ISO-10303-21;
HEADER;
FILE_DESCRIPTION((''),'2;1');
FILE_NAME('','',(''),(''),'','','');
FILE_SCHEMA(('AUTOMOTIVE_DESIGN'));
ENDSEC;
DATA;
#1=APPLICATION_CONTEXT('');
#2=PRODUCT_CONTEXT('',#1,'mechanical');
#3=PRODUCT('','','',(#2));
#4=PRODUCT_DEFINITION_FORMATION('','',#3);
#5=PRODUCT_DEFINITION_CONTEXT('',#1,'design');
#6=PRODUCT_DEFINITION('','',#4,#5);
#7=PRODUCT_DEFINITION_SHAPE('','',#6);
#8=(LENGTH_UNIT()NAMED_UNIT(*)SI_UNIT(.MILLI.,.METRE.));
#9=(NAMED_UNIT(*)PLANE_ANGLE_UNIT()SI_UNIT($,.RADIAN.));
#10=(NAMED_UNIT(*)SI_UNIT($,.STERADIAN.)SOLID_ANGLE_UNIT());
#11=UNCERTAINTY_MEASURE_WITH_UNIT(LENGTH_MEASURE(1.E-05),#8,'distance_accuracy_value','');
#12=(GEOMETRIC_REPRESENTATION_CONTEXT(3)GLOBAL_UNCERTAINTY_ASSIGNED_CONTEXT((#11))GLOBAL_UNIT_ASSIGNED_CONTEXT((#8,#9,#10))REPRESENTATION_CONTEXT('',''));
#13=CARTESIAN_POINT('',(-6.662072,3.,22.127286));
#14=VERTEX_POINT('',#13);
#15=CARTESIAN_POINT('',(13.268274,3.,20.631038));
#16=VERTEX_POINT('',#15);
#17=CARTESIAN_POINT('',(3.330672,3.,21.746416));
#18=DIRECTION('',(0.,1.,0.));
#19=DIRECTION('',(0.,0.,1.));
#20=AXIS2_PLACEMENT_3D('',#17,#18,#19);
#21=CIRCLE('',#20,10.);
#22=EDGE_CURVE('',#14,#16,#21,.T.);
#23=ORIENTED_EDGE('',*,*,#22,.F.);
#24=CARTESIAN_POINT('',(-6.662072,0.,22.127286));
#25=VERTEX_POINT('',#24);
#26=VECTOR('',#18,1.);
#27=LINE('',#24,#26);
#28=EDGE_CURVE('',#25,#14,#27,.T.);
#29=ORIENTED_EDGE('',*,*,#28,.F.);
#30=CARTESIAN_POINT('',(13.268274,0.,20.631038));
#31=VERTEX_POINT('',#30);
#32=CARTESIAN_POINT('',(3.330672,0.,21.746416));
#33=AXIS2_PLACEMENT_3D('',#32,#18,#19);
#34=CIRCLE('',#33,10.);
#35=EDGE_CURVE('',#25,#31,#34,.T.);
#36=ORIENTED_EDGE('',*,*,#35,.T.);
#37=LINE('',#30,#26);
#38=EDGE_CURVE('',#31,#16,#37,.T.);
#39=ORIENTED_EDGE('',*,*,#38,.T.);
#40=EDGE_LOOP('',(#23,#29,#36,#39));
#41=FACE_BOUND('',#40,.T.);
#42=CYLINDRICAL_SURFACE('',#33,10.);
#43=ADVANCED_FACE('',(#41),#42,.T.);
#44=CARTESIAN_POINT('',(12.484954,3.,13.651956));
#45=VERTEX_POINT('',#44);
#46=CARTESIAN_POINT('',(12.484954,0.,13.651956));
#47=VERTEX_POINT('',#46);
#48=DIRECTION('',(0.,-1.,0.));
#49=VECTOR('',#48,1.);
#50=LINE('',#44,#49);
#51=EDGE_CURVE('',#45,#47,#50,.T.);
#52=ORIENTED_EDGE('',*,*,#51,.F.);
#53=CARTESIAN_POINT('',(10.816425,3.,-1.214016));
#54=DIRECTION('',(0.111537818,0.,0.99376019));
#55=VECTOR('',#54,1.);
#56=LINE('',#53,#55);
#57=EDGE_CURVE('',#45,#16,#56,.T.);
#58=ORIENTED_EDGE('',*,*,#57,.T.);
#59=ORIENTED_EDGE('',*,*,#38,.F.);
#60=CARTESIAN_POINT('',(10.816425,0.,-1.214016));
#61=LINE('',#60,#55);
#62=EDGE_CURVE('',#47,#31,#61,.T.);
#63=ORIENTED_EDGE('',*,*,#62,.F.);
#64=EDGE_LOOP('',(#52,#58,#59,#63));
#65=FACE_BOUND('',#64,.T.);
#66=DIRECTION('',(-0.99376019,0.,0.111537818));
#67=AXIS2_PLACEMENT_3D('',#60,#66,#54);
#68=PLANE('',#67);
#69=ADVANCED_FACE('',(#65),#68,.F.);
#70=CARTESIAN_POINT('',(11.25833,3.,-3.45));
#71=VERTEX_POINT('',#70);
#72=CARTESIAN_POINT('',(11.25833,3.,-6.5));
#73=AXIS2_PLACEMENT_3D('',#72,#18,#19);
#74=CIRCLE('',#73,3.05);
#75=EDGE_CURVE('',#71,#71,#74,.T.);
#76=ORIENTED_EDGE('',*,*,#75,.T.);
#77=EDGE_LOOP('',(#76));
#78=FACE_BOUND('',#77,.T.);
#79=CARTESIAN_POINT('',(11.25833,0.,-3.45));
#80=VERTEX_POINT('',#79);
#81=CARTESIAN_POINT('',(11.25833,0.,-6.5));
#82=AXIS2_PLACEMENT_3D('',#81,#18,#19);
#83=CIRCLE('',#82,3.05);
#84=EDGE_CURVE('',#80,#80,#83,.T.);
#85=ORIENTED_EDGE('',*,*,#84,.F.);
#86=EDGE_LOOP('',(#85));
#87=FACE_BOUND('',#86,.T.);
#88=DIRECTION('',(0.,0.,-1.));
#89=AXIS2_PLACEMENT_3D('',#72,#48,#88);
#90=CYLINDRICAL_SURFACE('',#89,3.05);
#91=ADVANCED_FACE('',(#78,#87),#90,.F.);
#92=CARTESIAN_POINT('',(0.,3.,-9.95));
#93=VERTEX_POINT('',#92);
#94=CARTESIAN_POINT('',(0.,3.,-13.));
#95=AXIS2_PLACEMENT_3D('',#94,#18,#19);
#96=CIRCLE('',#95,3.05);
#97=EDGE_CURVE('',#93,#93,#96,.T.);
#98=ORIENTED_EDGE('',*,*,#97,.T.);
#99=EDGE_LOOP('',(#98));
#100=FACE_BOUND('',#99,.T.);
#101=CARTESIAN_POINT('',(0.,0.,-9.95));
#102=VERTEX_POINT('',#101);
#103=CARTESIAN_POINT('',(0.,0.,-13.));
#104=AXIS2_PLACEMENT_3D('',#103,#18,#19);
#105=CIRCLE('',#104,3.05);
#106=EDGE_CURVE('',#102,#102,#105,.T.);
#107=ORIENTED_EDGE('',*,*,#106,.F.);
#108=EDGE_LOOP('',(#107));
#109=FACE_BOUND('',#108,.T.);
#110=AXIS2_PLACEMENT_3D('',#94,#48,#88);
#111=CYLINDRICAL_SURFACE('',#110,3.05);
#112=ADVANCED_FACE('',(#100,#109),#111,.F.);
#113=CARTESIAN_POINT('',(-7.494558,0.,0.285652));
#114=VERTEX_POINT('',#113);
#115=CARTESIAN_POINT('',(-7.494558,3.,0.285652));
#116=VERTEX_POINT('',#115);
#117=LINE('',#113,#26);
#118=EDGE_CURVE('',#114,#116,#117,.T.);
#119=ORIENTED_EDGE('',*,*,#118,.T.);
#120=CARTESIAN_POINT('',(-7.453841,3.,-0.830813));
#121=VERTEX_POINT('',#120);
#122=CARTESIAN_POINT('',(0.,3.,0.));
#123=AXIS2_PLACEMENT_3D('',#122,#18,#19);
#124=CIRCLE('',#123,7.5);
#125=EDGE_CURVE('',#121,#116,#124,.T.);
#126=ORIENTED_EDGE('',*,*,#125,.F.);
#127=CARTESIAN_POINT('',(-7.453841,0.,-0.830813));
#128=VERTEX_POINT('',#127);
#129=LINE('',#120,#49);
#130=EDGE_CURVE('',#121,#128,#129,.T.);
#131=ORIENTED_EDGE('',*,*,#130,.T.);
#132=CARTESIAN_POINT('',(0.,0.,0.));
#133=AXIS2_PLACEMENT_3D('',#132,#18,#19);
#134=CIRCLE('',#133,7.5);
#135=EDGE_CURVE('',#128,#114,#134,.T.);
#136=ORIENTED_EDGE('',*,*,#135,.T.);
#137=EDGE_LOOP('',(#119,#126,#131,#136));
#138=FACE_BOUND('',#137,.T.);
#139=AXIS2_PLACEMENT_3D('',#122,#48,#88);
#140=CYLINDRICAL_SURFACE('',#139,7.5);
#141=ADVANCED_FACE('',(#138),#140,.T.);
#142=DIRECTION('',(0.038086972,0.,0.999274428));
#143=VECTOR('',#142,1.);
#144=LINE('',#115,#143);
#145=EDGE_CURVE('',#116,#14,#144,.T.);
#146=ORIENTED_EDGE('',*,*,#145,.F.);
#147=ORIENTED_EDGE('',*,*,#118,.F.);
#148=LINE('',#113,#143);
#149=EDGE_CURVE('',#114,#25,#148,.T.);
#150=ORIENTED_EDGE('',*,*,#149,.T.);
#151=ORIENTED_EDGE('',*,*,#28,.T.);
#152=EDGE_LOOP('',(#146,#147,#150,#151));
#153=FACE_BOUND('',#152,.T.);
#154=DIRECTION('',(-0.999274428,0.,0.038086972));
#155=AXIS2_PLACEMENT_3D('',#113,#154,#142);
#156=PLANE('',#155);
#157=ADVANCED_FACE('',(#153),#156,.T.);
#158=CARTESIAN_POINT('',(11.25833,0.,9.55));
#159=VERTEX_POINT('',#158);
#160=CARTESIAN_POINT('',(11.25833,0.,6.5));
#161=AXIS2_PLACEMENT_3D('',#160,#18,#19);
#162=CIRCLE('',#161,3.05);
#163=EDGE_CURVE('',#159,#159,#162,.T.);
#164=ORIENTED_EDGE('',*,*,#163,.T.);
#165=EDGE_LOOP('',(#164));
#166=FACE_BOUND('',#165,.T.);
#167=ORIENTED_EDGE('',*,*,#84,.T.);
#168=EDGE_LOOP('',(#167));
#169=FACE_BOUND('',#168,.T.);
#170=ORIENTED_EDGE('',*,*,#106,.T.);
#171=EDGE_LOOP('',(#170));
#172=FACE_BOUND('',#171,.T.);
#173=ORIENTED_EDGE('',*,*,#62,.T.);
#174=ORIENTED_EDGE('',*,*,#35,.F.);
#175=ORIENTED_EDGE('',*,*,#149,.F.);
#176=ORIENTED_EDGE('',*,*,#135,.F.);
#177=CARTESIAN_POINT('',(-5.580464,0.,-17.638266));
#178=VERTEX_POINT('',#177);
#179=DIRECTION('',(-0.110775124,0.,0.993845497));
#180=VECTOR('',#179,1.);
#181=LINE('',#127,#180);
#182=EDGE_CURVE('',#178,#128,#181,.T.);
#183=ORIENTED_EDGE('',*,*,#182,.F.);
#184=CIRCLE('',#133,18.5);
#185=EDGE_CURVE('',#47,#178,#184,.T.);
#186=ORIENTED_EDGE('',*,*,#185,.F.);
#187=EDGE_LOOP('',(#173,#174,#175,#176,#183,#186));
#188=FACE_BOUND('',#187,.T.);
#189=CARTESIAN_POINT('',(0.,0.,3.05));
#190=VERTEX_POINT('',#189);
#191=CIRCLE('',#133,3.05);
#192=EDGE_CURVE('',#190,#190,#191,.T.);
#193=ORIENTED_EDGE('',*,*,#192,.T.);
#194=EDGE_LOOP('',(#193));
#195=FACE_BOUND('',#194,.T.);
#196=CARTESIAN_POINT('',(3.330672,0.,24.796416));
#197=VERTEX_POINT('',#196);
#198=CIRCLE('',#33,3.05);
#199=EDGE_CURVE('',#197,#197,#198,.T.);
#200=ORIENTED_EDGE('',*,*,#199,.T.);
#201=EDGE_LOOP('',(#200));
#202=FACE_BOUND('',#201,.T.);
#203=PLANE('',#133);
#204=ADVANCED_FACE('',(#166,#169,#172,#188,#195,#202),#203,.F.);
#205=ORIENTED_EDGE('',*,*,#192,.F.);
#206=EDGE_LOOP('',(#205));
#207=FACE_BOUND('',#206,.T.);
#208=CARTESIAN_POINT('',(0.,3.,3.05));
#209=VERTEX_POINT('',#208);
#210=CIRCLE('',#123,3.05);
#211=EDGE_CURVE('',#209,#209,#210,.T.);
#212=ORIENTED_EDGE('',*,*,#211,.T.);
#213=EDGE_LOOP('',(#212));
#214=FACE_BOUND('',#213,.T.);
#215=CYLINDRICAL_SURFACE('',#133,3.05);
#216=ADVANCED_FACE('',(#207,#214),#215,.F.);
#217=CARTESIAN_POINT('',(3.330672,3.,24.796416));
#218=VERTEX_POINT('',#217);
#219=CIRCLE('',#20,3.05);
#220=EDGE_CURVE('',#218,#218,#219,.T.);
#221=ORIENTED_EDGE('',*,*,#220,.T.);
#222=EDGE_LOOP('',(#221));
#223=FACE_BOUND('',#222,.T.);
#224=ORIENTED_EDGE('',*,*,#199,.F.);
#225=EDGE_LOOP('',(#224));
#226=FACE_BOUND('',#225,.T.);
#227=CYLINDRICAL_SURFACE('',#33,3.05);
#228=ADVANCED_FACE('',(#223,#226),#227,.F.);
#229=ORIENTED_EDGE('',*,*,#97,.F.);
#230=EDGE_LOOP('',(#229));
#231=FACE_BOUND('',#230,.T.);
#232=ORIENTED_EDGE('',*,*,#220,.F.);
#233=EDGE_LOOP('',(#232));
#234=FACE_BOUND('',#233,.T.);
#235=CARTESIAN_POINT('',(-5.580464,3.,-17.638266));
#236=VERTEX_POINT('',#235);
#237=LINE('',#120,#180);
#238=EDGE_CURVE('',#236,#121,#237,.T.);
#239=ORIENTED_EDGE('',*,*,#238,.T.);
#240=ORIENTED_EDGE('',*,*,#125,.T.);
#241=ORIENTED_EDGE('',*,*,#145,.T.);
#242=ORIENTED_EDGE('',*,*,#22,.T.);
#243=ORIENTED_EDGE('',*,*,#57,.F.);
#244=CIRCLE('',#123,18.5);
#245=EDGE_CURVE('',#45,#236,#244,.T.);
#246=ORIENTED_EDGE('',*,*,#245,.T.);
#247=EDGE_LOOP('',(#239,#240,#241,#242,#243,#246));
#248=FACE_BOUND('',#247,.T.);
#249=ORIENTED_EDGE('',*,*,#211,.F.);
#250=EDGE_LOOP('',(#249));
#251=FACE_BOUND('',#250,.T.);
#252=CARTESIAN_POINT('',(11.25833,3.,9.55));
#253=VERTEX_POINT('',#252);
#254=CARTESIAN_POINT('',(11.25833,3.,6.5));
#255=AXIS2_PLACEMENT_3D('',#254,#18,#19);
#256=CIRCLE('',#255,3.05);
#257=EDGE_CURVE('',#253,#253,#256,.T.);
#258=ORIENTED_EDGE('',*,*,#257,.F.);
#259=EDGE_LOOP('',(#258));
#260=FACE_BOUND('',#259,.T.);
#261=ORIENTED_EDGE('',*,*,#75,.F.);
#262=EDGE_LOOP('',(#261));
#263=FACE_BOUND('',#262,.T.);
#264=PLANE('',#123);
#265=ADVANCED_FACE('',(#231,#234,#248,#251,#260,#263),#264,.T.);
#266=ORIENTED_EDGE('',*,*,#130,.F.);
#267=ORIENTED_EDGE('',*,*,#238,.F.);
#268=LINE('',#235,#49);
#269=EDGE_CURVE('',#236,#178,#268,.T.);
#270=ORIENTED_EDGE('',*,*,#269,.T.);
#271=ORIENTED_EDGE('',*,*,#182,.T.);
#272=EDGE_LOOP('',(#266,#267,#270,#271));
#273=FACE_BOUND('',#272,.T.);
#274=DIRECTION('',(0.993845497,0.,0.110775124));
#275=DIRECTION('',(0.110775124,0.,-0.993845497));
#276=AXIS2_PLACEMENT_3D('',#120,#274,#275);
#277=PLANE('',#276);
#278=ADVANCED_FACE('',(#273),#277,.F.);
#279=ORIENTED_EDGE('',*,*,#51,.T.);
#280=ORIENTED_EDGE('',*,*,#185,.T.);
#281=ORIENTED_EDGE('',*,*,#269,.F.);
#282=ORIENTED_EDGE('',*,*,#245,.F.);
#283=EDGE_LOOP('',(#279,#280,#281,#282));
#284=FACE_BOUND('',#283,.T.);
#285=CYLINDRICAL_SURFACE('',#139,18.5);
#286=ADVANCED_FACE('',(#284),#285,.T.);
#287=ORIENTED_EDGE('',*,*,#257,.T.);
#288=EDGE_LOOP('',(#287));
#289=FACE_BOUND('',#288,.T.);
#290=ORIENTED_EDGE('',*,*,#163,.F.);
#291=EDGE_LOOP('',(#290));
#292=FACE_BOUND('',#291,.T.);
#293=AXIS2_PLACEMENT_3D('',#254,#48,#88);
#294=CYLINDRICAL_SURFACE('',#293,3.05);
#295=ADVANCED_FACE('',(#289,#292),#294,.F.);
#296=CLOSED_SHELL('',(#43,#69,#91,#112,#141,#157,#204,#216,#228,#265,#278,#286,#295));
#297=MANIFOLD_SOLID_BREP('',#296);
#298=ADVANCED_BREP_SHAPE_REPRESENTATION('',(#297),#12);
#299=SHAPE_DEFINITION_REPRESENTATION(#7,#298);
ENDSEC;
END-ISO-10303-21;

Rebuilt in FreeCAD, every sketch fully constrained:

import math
import FreeCAD as App
import Part
import Sketcher
Q = App.Units.Quantity

doc = App.newDocument("Part")
body = doc.addObject("PartDesign::Body", "Body")

# Sketch on XZ plane
sketch1 = body.newObject("Sketcher::SketchObject", "Sketch")
sketch1.AttachmentSupport = (doc.getObject("XZ_Plane"), [""])
sketch1.MapMode = "FlatFace"
sketch1.addGeometry(Part.ArcOfCircle(Part.Circle(App.Vector(0, 0, 0), App.Vector(0, 0, 1), 7.5), math.radians(114), math.radians(186)), False)
sketch1.addGeometry(Part.LineSegment(App.Vector(-3, 6.9, 0), App.Vector(12.5, 13.7, 0)), False)
sketch1.addGeometry(Part.ArcOfCircle(Part.Circle(App.Vector(0, 0, 0), App.Vector(0, 0, 1), 18.5), math.radians(0), math.radians(48)), False)
sketch1.addGeometry(Part.ArcOfCircle(Part.Circle(App.Vector(0, 0, 0), App.Vector(0, 0, 1), 18.5), math.radians(-108), math.radians(0)), False)
sketch1.addGeometry(Part.LineSegment(App.Vector(-5.6, -17.6, 0), App.Vector(-7.5, -0.8, 0)), False)
sketch1.addGeometry(Part.Circle(App.Vector(11.3, -6.5, 0), App.Vector(0, 0, 1), 3), False)
sketch1.addGeometry(Part.Circle(App.Vector(0, -13, 0), App.Vector(0, 0, 1), 3), False)
sketch1.addGeometry(Part.Circle(App.Vector(11.3, 6.5, 0), App.Vector(0, 0, 1), 3), False)
sketch1.addConstraint(Sketcher.Constraint("Tangent", 0, 1, 1, 1))
sketch1.addConstraint(Sketcher.Constraint("Coincident", 1, 2, 2, 2))
sketch1.addConstraint(Sketcher.Constraint("Tangent", 2, 1, 3, 2))
sketch1.addConstraint(Sketcher.Constraint("Coincident", 3, 1, 4, 1))
sketch1.addConstraint(Sketcher.Constraint("Tangent", 4, 2, 0, 2))
sketch1.addConstraint(Sketcher.Constraint("Coincident", 0, 3, -1, 1))
sketch1.addConstraint(Sketcher.Constraint("Coincident", 2, 3, -1, 1))
sketch1.addConstraint(Sketcher.Constraint("Equal", 2, 3))
sketch1.addConstraint(Sketcher.Constraint("Equal", 5, 6))
sketch1.addConstraint(Sketcher.Constraint("Equal", 6, 7))
sketch1.addConstraint(Sketcher.Constraint("Symmetric", 5, 3, 7, 3, -1))
sketch1.addConstraint(Sketcher.Constraint("PointOnObject", 6, 3, -2))
sketch1.addConstraint(Sketcher.Constraint("PointOnObject", 2, 1, -1))
sketch1.addConstraint(Sketcher.Constraint("Diameter", 5, Q("6.1 mm")))
sketch1.addConstraint(Sketcher.Constraint("Radius", 0, Q("7.5 mm")))
sketch1.addConstraint(Sketcher.Constraint("Radius", 2, Q("18.5 mm")))
sketch1.addConstraint(Sketcher.Constraint("DistanceY", 6, 3, -1, 1, Q("13 mm")))
sketch1.addConstraint(Sketcher.Constraint("DistanceY", 5, 3, 7, 3, Q("13 mm")))
sketch1.addConstraint(Sketcher.Constraint("Angle", 1, Q("23.64 deg")))
sketch1.addConstraint(Sketcher.Constraint("Angle", 4, Q("96.36 deg")))
sketch1.addConstraint(Sketcher.Constraint("DistanceX", -1, 1, 5, 3, Q("11.25833 mm")))
pad1 = body.newObject("PartDesign::Pad", "Pad")
pad1.Profile = sketch1
pad1.Length = 3
pad1.Reversed = True

# Sketch on XZ plane
sketch2 = body.newObject("Sketcher::SketchObject", "Sketch001")
sketch2.AttachmentSupport = (doc.getObject("XZ_Plane"), [""])
sketch2.MapMode = "FlatFace"
sketch2.AttachmentOffset = App.Placement(App.Vector(0, 0, -3), App.Rotation())
sketch2.addGeometry(Part.ArcOfCircle(Part.Circle(App.Vector(0, 0, 0), App.Vector(0, 0, 1), 7.5), math.radians(114), math.radians(178)), False)
sketch2.addGeometry(Part.LineSegment(App.Vector(-7.5, 0.3, 0), App.Vector(-6.7, 22.1, 0)), False)
sketch2.addGeometry(Part.ArcOfCircle(Part.Circle(App.Vector(3.3, 21.7, 0), App.Vector(0, 0, 1), 10), math.radians(-6), math.radians(178)), False)
sketch2.addGeometry(Part.LineSegment(App.Vector(13.3, 20.6, 0), App.Vector(12.5, 13.7, 0)), False)
sketch2.addGeometry(Part.LineSegment(App.Vector(12.5, 13.7, 0), App.Vector(-3, 6.9, 0)), False)
sketch2.addGeometry(Part.Circle(App.Vector(3.3, 21.7, 0), App.Vector(0, 0, 1), 3), False)
sketch2.addConstraint(Sketcher.Constraint("Tangent", 0, 2, 1, 1))
sketch2.addConstraint(Sketcher.Constraint("Tangent", 1, 2, 2, 2))
sketch2.addConstraint(Sketcher.Constraint("Tangent", 2, 1, 3, 1))
sketch2.addConstraint(Sketcher.Constraint("Coincident", 3, 2, 4, 1))
sketch2.addConstraint(Sketcher.Constraint("Tangent", 4, 2, 0, 1))
sketch2.addConstraint(Sketcher.Constraint("Coincident", 0, 3, -1, 1))
sketch2.addConstraint(Sketcher.Constraint("Coincident", 5, 3, 2, 3))
sketch2.addConstraint(Sketcher.Constraint("Radius", 2, Q("10 mm")))
sketch2.addConstraint(Sketcher.Constraint("Diameter", 5, Q("6.1 mm")))
sketch2.addConstraint(Sketcher.Constraint("Radius", 0, Q("7.5 mm")))
sketch2.addConstraint(Sketcher.Constraint("Angle", 4, Q("-156.36 deg")))
sketch2.addConstraint(Sketcher.Constraint("DistanceX", 2, 3, 2, 1, Q("9.937602 mm")))
sketch2.addConstraint(Sketcher.Constraint("DistanceX", -1, 1, 2, 3, Q("3.330672 mm")))
sketch2.addConstraint(Sketcher.Constraint("DistanceY", -1, 1, 2, 1, Q("20.631038 mm")))
pad2 = body.newObject("PartDesign::Pad", "Pad001")
pad2.Profile = sketch2
pad2.Length = 3

# Sketch on XZ plane
sketch3 = body.newObject("Sketcher::SketchObject", "Sketch002")
sketch3.AttachmentSupport = (doc.getObject("XZ_Plane"), [""])
sketch3.MapMode = "FlatFace"
sketch3.AttachmentOffset = App.Placement(App.Vector(0, 0, -3), App.Rotation())
sketch3.addGeometry(Part.Circle(App.Vector(0, 0, 0), App.Vector(0, 0, 1), 3), False)
sketch3.addConstraint(Sketcher.Constraint("Coincident", 0, 3, -1, 1))
sketch3.addConstraint(Sketcher.Constraint("Diameter", 0, Q("6.1 mm")))
pocket1 = body.newObject("PartDesign::Pocket", "Pocket")
pocket1.Profile = sketch3
pocket1.Type = "ThroughAll"
pocket1.Reversed = True

doc.recompute()
